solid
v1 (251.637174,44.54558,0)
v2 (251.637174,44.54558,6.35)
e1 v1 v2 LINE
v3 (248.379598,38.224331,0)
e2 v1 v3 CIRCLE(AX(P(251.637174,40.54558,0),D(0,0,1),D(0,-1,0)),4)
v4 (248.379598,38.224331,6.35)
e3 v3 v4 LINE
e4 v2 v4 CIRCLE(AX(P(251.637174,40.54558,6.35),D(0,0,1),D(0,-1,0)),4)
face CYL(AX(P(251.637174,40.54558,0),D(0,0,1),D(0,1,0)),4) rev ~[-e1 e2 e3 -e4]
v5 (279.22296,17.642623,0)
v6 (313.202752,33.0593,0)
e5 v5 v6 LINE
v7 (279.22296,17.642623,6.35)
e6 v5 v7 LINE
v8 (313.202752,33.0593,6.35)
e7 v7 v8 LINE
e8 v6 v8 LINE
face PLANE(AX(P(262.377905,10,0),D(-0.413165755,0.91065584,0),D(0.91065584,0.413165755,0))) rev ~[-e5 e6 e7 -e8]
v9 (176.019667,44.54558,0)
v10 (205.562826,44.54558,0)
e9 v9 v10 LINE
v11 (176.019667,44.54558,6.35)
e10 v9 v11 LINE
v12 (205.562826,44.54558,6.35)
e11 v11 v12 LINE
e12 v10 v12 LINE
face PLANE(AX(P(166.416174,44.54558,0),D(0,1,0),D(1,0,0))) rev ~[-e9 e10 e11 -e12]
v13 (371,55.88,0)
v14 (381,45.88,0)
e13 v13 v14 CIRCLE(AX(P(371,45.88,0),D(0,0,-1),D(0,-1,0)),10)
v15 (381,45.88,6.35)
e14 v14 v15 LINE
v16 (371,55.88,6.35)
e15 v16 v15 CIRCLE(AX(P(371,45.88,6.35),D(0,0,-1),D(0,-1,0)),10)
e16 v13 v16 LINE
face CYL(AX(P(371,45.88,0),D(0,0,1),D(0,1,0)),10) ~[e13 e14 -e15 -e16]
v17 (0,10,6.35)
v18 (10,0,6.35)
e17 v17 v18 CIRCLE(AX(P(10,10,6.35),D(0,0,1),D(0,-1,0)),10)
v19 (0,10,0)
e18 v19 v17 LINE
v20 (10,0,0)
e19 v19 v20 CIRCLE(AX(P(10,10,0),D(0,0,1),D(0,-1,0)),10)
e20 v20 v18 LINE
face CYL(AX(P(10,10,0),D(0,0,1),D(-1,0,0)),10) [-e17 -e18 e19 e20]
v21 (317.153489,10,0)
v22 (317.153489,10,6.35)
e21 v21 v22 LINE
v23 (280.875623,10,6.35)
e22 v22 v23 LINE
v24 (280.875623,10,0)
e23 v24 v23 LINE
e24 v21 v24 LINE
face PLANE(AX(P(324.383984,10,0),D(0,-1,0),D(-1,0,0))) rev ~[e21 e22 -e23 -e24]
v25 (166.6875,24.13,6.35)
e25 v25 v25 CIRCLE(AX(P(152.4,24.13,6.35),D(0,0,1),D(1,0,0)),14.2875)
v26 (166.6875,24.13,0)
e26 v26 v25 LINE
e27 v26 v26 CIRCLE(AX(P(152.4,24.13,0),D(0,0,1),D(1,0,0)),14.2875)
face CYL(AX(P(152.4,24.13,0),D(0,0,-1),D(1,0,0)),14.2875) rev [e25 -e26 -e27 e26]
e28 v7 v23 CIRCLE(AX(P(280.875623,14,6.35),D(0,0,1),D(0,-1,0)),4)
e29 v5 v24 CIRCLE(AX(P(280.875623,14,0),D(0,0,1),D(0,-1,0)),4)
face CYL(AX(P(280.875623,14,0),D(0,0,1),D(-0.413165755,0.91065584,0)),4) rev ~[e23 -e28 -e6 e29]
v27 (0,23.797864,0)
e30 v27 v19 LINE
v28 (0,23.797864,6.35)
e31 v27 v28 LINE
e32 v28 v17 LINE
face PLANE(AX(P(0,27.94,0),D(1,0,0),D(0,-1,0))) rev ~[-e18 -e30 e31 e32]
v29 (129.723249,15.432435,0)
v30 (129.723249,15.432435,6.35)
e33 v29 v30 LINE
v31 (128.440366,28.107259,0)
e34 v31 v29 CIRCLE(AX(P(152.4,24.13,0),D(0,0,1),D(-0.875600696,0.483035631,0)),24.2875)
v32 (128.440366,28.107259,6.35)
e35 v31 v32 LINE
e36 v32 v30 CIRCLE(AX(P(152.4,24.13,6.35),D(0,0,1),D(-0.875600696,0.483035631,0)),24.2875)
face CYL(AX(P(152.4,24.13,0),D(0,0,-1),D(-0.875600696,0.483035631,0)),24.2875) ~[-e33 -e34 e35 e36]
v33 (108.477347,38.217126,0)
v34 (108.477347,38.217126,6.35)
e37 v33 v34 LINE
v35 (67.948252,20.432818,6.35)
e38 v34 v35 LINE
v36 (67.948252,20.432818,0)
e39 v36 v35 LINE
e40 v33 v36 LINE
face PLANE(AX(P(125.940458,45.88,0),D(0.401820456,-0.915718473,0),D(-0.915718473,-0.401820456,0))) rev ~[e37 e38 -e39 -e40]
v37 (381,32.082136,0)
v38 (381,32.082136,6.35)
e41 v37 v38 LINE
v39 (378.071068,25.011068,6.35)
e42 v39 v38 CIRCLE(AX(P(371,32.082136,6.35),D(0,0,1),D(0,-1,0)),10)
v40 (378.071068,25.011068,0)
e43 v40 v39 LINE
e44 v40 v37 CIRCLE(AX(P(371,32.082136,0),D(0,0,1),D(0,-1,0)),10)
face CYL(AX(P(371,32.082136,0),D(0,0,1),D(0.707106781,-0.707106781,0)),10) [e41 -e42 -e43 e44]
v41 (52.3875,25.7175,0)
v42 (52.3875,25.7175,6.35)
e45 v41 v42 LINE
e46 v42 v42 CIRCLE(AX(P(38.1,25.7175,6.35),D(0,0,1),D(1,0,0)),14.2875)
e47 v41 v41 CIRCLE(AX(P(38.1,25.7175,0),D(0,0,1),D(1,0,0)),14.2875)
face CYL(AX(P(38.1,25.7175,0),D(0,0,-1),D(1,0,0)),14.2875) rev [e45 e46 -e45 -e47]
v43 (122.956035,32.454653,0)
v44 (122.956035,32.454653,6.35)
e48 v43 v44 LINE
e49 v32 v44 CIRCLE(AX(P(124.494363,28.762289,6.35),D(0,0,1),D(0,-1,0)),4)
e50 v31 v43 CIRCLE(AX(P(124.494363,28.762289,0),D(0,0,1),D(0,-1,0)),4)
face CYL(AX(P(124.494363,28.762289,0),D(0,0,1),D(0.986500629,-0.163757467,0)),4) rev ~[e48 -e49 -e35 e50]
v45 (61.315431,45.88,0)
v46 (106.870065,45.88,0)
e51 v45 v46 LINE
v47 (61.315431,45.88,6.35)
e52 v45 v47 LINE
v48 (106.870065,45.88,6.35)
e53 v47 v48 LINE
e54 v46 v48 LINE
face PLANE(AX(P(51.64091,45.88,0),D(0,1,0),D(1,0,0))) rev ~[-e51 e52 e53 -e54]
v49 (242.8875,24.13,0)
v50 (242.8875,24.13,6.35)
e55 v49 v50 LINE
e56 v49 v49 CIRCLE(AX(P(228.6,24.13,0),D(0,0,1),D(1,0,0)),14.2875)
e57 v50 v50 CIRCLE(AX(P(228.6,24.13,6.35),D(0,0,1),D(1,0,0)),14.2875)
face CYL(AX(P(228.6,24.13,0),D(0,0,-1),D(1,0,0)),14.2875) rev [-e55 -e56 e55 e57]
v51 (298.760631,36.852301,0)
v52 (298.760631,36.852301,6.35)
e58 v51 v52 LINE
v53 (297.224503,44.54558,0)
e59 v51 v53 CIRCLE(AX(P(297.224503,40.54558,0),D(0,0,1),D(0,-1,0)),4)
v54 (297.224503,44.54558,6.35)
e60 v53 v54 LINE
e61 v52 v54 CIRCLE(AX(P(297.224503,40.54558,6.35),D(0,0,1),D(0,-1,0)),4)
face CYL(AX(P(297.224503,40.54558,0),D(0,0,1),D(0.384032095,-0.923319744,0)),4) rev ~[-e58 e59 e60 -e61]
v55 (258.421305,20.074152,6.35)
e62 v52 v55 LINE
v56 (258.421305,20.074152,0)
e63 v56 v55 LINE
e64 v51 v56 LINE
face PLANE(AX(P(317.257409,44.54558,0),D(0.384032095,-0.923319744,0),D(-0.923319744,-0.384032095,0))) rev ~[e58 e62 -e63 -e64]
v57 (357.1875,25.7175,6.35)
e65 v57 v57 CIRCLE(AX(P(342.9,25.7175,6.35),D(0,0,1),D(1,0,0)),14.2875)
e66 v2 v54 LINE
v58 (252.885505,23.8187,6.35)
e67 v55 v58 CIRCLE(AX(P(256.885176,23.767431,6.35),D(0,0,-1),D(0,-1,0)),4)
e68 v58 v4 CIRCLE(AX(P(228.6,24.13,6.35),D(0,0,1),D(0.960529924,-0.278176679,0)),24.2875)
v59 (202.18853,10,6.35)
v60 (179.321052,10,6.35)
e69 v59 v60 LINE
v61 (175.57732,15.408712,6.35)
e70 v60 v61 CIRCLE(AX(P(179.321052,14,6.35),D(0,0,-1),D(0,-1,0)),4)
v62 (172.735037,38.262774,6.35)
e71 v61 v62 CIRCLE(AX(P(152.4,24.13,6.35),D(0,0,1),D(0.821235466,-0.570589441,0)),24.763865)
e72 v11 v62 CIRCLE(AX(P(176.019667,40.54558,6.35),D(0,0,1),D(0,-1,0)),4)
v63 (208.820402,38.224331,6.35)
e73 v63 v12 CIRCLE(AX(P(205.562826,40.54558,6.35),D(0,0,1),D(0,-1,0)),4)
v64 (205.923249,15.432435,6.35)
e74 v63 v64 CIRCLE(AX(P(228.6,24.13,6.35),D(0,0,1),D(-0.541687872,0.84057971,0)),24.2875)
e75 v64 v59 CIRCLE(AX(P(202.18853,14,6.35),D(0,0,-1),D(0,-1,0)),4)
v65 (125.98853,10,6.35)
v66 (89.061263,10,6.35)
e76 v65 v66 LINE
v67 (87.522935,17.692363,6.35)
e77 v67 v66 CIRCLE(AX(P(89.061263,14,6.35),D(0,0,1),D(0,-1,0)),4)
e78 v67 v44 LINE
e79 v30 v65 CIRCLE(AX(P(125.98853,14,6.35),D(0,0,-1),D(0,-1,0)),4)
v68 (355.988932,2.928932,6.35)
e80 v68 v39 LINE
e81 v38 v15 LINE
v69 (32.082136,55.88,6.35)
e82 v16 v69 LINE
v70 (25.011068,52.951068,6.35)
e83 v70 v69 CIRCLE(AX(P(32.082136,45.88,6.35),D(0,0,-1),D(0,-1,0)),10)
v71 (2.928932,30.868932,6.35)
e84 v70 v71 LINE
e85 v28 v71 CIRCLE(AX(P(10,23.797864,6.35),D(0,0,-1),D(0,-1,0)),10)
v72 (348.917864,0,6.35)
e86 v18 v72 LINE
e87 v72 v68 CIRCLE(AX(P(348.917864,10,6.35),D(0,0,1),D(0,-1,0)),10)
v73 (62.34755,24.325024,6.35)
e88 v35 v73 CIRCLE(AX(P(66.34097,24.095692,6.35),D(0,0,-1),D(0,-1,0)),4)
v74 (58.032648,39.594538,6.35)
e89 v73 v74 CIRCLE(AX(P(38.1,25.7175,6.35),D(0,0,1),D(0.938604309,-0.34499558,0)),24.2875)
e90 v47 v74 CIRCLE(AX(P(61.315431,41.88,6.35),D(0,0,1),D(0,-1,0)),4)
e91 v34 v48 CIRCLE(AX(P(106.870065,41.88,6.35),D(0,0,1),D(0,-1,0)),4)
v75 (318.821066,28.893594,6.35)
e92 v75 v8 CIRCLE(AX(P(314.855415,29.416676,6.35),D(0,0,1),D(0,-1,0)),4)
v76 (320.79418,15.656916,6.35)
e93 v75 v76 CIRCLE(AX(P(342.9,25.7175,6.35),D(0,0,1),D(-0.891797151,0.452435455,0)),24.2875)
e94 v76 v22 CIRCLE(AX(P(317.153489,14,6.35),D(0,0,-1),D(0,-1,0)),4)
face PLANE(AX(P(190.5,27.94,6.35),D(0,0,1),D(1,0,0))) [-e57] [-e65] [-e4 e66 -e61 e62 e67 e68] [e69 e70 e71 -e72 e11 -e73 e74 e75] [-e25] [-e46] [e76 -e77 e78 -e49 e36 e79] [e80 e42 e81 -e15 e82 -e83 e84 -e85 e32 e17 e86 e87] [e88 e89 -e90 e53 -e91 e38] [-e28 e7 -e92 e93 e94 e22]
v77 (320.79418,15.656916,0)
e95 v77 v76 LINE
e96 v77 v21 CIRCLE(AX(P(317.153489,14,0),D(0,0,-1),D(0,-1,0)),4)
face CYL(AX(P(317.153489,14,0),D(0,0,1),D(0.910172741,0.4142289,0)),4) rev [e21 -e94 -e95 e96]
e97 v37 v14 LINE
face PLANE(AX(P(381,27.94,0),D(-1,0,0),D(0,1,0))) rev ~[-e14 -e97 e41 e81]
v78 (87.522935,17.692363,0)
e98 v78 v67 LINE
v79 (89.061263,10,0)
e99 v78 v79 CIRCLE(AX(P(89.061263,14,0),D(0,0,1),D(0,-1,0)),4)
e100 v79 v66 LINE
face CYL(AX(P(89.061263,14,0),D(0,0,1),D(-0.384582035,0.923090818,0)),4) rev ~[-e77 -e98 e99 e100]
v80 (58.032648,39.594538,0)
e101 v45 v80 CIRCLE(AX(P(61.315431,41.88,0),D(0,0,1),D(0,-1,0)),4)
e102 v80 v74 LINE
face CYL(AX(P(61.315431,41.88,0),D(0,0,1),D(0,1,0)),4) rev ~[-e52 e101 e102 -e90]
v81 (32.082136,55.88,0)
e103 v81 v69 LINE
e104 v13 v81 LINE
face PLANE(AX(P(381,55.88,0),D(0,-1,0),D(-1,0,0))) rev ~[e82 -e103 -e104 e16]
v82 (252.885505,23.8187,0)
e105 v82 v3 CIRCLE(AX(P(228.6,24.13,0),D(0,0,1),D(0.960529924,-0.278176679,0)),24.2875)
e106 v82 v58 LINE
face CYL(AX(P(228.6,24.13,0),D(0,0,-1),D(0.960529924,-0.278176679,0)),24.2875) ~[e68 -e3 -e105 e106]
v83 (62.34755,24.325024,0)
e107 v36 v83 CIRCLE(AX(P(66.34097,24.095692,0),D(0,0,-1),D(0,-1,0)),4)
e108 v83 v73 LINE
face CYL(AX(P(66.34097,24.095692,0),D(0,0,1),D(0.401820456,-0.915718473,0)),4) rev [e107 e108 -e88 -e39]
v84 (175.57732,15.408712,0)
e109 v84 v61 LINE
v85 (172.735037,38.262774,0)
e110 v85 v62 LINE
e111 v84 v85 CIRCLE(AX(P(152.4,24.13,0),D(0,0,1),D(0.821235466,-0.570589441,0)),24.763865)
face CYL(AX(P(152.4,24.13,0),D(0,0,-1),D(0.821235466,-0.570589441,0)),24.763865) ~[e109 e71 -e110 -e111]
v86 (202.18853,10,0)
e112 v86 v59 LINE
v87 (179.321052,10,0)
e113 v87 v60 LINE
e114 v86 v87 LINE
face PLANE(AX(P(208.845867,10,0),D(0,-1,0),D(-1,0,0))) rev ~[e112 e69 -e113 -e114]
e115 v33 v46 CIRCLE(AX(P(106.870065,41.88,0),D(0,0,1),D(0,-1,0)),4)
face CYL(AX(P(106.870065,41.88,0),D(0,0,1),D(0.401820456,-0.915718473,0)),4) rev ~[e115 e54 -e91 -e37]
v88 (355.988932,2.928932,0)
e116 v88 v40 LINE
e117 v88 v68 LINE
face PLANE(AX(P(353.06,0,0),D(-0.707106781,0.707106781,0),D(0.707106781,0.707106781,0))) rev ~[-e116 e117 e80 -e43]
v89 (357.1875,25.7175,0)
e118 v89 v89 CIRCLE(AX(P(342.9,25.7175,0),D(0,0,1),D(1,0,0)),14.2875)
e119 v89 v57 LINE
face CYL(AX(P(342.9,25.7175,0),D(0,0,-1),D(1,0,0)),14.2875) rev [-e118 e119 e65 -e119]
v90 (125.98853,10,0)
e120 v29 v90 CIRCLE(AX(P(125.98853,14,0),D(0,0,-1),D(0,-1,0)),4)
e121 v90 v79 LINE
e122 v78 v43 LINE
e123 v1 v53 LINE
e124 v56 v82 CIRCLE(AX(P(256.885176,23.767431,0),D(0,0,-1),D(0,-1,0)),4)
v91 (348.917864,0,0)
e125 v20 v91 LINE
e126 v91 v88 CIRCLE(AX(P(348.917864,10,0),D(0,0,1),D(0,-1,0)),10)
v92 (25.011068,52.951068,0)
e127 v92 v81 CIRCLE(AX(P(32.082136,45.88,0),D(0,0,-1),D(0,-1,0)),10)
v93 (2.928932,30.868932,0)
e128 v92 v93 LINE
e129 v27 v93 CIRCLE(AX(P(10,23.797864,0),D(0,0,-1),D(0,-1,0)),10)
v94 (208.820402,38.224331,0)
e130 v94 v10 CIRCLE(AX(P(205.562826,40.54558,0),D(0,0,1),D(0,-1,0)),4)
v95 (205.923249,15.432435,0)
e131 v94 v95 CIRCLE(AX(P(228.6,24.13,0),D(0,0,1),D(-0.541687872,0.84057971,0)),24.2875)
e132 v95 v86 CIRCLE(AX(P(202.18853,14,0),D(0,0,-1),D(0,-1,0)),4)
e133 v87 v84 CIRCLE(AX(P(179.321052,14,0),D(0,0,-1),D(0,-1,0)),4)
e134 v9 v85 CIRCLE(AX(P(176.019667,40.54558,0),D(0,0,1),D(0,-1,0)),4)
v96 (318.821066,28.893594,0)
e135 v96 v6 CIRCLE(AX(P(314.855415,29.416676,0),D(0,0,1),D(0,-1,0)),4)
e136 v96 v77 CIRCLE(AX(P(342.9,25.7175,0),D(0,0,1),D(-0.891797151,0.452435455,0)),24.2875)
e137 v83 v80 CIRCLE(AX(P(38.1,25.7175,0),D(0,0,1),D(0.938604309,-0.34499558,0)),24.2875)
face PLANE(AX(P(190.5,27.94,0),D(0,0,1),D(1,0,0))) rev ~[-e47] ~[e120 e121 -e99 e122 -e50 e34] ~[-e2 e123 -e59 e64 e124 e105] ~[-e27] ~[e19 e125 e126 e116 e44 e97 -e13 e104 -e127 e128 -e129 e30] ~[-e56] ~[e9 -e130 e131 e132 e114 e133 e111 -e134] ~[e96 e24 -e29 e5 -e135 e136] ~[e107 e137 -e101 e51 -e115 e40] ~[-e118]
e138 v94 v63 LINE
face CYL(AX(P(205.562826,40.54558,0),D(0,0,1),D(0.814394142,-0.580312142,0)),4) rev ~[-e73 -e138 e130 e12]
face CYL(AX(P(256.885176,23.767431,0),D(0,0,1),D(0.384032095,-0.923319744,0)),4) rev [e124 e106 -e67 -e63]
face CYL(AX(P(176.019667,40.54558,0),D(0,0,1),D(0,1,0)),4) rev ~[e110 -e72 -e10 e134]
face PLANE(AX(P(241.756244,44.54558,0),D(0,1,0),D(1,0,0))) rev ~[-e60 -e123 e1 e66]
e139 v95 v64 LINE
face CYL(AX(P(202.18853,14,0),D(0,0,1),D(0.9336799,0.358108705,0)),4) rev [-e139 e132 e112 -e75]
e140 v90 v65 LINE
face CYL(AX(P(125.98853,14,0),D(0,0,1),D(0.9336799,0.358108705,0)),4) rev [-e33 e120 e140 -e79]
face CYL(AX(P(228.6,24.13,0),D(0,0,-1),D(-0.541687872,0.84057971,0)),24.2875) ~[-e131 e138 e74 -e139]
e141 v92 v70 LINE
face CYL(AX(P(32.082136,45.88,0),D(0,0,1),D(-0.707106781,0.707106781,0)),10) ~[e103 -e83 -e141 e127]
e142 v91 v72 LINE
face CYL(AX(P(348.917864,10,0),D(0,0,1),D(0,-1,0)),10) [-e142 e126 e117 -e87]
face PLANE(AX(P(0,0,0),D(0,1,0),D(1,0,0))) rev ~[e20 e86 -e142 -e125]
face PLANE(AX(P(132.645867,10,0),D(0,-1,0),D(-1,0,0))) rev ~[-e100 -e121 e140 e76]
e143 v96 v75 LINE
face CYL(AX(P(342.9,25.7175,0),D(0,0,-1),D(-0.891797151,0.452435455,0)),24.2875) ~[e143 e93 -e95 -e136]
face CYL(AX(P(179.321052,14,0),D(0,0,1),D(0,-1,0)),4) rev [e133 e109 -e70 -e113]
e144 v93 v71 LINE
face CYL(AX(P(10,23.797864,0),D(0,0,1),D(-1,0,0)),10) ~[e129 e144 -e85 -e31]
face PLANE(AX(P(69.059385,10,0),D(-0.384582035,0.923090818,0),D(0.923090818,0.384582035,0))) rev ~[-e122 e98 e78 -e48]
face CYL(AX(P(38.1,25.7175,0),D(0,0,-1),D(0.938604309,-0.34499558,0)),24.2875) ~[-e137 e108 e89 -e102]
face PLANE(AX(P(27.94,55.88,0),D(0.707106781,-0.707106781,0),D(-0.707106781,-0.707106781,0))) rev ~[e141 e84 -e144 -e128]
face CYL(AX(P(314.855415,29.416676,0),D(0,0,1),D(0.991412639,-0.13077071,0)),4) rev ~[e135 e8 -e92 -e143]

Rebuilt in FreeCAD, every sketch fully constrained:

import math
import FreeCAD as App
import Part
import Sketcher

V = App.Vector
Q = App.Units.Quantity


def edges_at(feature, points):
    """Names of the edges that pass closest to the given points."""
    edges = feature.Shape.Edges
    near = lambda p: min(range(len(edges)), key=lambda i: edges[i].distToShape(Part.Vertex(*p))[0])
    return sorted({f"Edge{near(p) + 1}" for p in points})

doc = App.newDocument("Part")
body = doc.addObject("PartDesign::Body", "Body")

# Sketch on XY plane
sketch1 = body.newObject("Sketcher::SketchObject", "Sketch")
sketch1.AttachmentSupport = (doc.getObject("XY_Plane"), [""])
sketch1.MapMode = "FlatFace"
sketch1.addGeometry([
    Part.LineSegment(V(0, 28, 0), V(0, 0, 0)),  # 0
    Part.LineSegment(V(0, 0, 0), V(353, 0, 0)),  # 1
    Part.LineSegment(V(353, 0, 0), V(381, 28, 0)),  # 2
    Part.LineSegment(V(381, 28, 0), V(381, 56, 0)),  # 3
    Part.LineSegment(V(381, 56, 0), V(28, 56, 0)),  # 4
    Part.LineSegment(V(28, 56, 0), V(0, 28, 0)),  # 5
    Part.ArcOfCircle(Part.Circle(V(152, 24, 0), V(0, 0, 1), 24), math.radians(151), math.radians(216)),  # 6
    Part.LineSegment(V(133, 10, 0), V(69, 10, 0)),  # 7
    Part.LineSegment(V(69, 10, 0), V(131, 36, 0)),  # 8
    Part.Circle(V(38, 26, 0), V(0, 0, 1), 14),  # 9
    Part.Circle(V(152, 24, 0), V(0, 0, 1), 14),  # 10
    Part.Circle(V(229, 24, 0), V(0, 0, 1), 14),  # 11
    Part.ArcOfCircle(Part.Circle(V(229, 24, 0), V(0, 0, 1), 24), math.radians(123), math.radians(216)),  # 12
    Part.LineSegment(V(209, 10, 0), V(173, 10, 0)),  # 13
    Part.ArcOfCircle(Part.Circle(V(152, 24, 0), V(0, 0, 1), 25), math.radians(-35), math.radians(56)),  # 14
    Part.LineSegment(V(166, 45, 0), V(215, 45, 0)),  # 15
    Part.ArcOfCircle(Part.Circle(V(343, 26, 0), V(0, 0, 1), 24), math.radians(153), math.radians(220)),  # 16
    Part.LineSegment(V(324, 10, 0), V(262, 10, 0)),  # 17
    Part.LineSegment(V(262, 10, 0), V(321, 37, 0)),  # 18
    Part.Circle(V(343, 26, 0), V(0, 0, 1), 14),  # 19
    Part.LineSegment(V(126, 46, 0), V(61, 17, 0)),  # 20
    Part.ArcOfCircle(Part.Circle(V(38, 26, 0), V(0, 0, 1), 24), math.radians(-20), math.radians(56)),  # 21
    Part.LineSegment(V(52, 46, 0), V(126, 46, 0)),  # 22
    Part.LineSegment(V(317, 45, 0), V(252, 17, 0)),  # 23
    Part.ArcOfCircle(Part.Circle(V(229, 24, 0), V(0, 0, 1), 24), math.radians(-16), math.radians(57)),  # 24
    Part.LineSegment(V(242, 45, 0), V(317, 45, 0)),  # 25
], False)
sketch1.addConstraint([
    Sketcher.Constraint("Coincident", 0, 2, 1, 1),
    Sketcher.Constraint("Coincident", 1, 2, 2, 1),
    Sketcher.Constraint("Coincident", 2, 2, 3, 1),
    Sketcher.Constraint("Coincident", 3, 2, 4, 1),
    Sketcher.Constraint("Coincident", 4, 2, 5, 1),
    Sketcher.Constraint("Coincident", 5, 2, 0, 1),
    Sketcher.Constraint("Coincident", 6, 2, 7, 1),
    Sketcher.Constraint("Coincident", 7, 2, 8, 1),
    Sketcher.Constraint("Coincident", 8, 2, 6, 1),
    Sketcher.Constraint("Coincident", 12, 2, 13, 1),
    Sketcher.Constraint("Coincident", 13, 2, 14, 1),
    Sketcher.Constraint("Coincident", 14, 2, 15, 1),
    Sketcher.Constraint("Coincident", 15, 2, 12, 1),
    Sketcher.Constraint("Coincident", 16, 2, 17, 1),
    Sketcher.Constraint("Coincident", 17, 2, 18, 1),
    Sketcher.Constraint("Coincident", 18, 2, 16, 1),
    Sketcher.Constraint("Coincident", 20, 2, 21, 1),
    Sketcher.Constraint("Coincident", 21, 2, 22, 1),
    Sketcher.Constraint("Coincident", 22, 2, 20, 1),
    Sketcher.Constraint("Coincident", 23, 2, 24, 1),
    Sketcher.Constraint("Coincident", 24, 2, 25, 1),
    Sketcher.Constraint("Coincident", 25, 2, 23, 1),
    Sketcher.Constraint("Vertical", 0),
    Sketcher.Constraint("Horizontal", 1),
    Sketcher.Constraint("Vertical", 3),
    Sketcher.Constraint("Horizontal", 4),
    Sketcher.Constraint("Horizontal", 7),
    Sketcher.Constraint("Horizontal", 13),
    Sketcher.Constraint("Horizontal", 15),
    Sketcher.Constraint("Horizontal", 17),
    Sketcher.Constraint("Horizontal", 22),
    Sketcher.Constraint("Horizontal", 25),
    Sketcher.Constraint("Coincident", 0, 2, -1, 1),
    Sketcher.Constraint("Coincident", 10, 3, 6, 3),
    Sketcher.Constraint("Coincident", 12, 3, 11, 3),
    Sketcher.Constraint("Coincident", 14, 3, 6, 3),
    Sketcher.Constraint("Coincident", 19, 3, 16, 3),
    Sketcher.Constraint("Coincident", 21, 3, 9, 3),
    Sketcher.Constraint("Coincident", 24, 3, 11, 3),
    Sketcher.Constraint("Equal", 9, 10),
    Sketcher.Constraint("Equal", 10, 11),
    Sketcher.Constraint("Equal", 6, 12),
    Sketcher.Constraint("Equal", 12, 16),
    Sketcher.Constraint("Equal", 11, 19),
    Sketcher.Constraint("Equal", 16, 21),
    Sketcher.Constraint("Equal", 21, 24),
    Sketcher.Constraint("Parallel", 2, 5),
    Sketcher.Constraint("Horizontal", 10, 3, 11, 3),
    Sketcher.Constraint("Horizontal", 9, 3, 16, 3),
    Sketcher.Constraint("Horizontal", 2, 2, 5, 2),
    Sketcher.Constraint("Horizontal", 7, 2, 12, 2),
    Sketcher.Constraint("Horizontal", 13, 2, 16, 2),
    Sketcher.Constraint("Horizontal", 15, 2, 24, 2),
    Sketcher.Constraint("Equal", 1, 4),
    Sketcher.Constraint("Diameter", 9, Q("1.125 in")),
    Sketcher.Constraint("DistanceX", 1, 1, 1, 2, Q("13.9 in")),
    Sketcher.Constraint("DistanceY", 0, 2, 0, 1, Q("1.1 in")),
    Sketcher.Constraint("DistanceX", -1, 1, 6, 3, Q("6 in")),
    Sketcher.Constraint("DistanceX", -1, 1, 11, 3, Q("9 in")),
    Sketcher.Constraint("DistanceX", -1, 1, 2, 2, Q("15 in")),
    Sketcher.Constraint("DistanceX", -1, 1, 9, 3, Q("1.5 in")),
    Sketcher.Constraint("DistanceX", -1, 1, 16, 3, Q("13.5 in")),
    Sketcher.Constraint("DistanceY", -1, 1, 6, 3, Q("0.95 in")),
    Sketcher.Constraint("Radius", 6, 24.2875),
    Sketcher.Constraint("DistanceY", 6, 3, 9, 3, Q("0.0625 in")),
    Sketcher.Constraint("Radius", 14, 24.763865),
    Sketcher.Constraint("DistanceX", 17, 2, 17, 1, 62.006078),
    Sketcher.Constraint("DistanceY", -1, 1, 6, 2, 10.0),
    Sketcher.Constraint("DistanceY", -1, 1, 21, 2, 45.88),
    Sketcher.Constraint("Distance", 18, 64.63756),
    Sketcher.Constraint("Distance", 20, 71.03068),
    Sketcher.Constraint("Distance", 23, 70.753971),
    Sketcher.Constraint("DistanceX", 7, 2, 7, 1, 63.586483),
    Sketcher.Constraint("DistanceX", 15, 1, 15, 2, 49.027582),
    Sketcher.Constraint("DistanceX", 22, 1, 22, 2, 74.299548),
    Sketcher.Constraint("DistanceX", 25, 1, 25, 2, 75.501165),
    Sketcher.Constraint("DistanceX", -1, 1, 8, 2, 131.133848),
])
pad1 = body.newObject("PartDesign::Pad", "Pad")
pad1.Profile = sketch1
pad1.Length = Q("0.25 in")
doc.recompute()

fillet = body.newObject("PartDesign::Fillet", "Fillet")
fillet.Base = (pad1, edges_at(pad1, [
    (0, 0, 3.175),
    (0, 27.94, 3.175),
    (27.94, 55.88, 3.175),
    (381, 55.88, 3.175),
    (381, 27.94, 3.175),
    (353.06, 0, 3.175),
]))
fillet.Radius = 10
doc.recompute()

fillet2 = body.newObject("PartDesign::Fillet", "Fillet001")
fillet2.Base = (fillet, edges_at(fillet, [
    (208.846, 10, 3.175),
    (215.444, 44.546, 3.175),
    (166.416, 44.546, 3.175),
    (172.737, 10, 3.175),
    (69.059, 10, 3.175),
    (131.134, 35.862, 3.175),
    (125.94, 45.88, 3.175),
    (60.896, 17.338, 3.175),
    (251.929, 17.374, 3.175),
    (317.257, 44.546, 3.175),
    (321.24, 36.706, 3.175),
    (262.378, 10, 3.175),
]))
fillet2.Radius = 4
doc.recompute()

fillet3 = body.newObject("PartDesign::Fillet", "Fillet002")
fillet3.Base = (fillet2, edges_at(fillet2, [
    (132.646, 10, 3.175),
    (51.641, 45.88, 3.175),
    (241.756, 44.546, 3.175),
    (324.384, 10, 3.175),
]))
fillet3.Radius = 4

doc.recompute()
